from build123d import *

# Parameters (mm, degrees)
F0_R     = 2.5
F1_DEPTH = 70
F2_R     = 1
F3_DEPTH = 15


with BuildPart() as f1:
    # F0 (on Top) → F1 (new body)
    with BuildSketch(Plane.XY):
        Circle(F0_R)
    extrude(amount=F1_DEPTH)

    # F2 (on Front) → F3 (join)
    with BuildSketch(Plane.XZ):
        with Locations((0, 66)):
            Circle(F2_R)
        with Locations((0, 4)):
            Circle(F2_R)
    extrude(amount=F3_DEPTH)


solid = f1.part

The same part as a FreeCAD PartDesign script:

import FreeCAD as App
import Part
import Sketcher

V = App.Vector

doc = App.newDocument("Part")
body = doc.addObject("PartDesign::Body", "Body")

# Sketch on XY plane
sketch1 = body.newObject("Sketcher::SketchObject", "Sketch")
sketch1.AttachmentSupport = (doc.getObject("XY_Plane"), [""])
sketch1.MapMode = "FlatFace"
sketch1.addGeometry(Part.Circle(V(0, 0, 0), V(0, 0, 1), 2.5), False)
sketch1.addConstraint([
    Sketcher.Constraint("Coincident", 0, 3, -1, 1),
    Sketcher.Constraint("Diameter", 0, 5.0),
])
pad1 = body.newObject("PartDesign::Pad", "Pad")
pad1.Profile = sketch1
pad1.Length = 70

# Sketch on XZ plane
sketch2 = body.newObject("Sketcher::SketchObject", "Sketch001")
sketch2.AttachmentSupport = (doc.getObject("XZ_Plane"), [""])
sketch2.MapMode = "FlatFace"
sketch2.addGeometry([
    Part.Circle(V(0, 66, 0), V(0, 0, 1), 1),
    Part.Circle(V(0, 4, 0), V(0, 0, 1), 1),
], False)
sketch2.addConstraint([
    Sketcher.Constraint("Equal", 0, 1),
    Sketcher.Constraint("PointOnObject", 0, 3, -2),
    Sketcher.Constraint("PointOnObject", 1, 3, -2),
    Sketcher.Constraint("Diameter", 0, 2.0),
    Sketcher.Constraint("DistanceY", -1, 1, 0, 3, 66.0),
    Sketcher.Constraint("DistanceY", -1, 1, 1, 3, 4.0),
])
pad2 = body.newObject("PartDesign::Pad", "Pad001")
pad2.Profile = sketch2
pad2.Length = 15

doc.recompute()
